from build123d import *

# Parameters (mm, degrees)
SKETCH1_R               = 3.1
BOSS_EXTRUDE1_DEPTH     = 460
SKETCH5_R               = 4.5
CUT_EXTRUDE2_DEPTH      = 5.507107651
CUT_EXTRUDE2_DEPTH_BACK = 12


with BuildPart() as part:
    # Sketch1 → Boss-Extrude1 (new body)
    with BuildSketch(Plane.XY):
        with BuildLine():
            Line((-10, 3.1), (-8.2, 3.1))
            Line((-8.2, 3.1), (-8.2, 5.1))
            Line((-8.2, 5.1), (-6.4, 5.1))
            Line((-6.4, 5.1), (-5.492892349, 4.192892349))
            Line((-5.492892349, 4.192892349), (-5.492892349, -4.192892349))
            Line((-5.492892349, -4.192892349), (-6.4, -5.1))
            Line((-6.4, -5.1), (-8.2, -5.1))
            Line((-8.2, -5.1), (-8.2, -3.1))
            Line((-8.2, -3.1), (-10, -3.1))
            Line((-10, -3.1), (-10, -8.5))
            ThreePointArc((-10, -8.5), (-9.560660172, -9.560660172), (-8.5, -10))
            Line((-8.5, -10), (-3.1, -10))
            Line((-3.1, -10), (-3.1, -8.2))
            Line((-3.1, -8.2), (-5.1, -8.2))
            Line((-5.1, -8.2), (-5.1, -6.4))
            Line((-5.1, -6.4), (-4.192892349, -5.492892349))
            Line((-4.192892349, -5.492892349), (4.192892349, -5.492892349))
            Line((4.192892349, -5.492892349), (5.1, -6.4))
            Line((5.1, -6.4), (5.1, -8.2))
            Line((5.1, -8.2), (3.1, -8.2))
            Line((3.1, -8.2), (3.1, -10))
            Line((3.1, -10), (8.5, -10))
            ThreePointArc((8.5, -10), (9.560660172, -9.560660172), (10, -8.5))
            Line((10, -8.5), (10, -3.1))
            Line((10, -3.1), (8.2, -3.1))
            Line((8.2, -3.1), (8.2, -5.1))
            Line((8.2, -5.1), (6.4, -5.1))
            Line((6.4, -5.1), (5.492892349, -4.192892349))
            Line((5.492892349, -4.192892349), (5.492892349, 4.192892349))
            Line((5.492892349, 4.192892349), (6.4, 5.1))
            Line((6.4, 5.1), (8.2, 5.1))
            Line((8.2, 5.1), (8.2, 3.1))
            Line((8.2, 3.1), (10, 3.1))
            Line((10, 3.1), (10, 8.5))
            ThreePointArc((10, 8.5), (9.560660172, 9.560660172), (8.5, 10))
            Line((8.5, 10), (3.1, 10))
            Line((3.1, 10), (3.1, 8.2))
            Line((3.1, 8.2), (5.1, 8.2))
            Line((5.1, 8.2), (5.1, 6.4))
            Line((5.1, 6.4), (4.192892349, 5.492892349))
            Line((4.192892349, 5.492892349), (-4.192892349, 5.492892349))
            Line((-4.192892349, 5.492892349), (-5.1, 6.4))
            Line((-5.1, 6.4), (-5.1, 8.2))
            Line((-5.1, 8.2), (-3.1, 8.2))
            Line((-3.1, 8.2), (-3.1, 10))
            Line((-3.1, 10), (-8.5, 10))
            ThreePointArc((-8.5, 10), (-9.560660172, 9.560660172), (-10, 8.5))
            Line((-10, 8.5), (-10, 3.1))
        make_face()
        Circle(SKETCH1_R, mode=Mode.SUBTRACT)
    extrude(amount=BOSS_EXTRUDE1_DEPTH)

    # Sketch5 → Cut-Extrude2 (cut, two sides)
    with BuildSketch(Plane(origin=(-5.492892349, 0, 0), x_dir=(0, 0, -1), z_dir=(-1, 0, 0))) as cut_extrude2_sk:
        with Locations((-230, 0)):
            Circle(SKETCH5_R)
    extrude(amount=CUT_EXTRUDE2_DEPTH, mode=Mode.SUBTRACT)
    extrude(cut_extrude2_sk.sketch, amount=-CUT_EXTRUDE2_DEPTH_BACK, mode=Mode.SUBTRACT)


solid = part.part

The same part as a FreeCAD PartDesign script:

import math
import FreeCAD as App
import Part
import Sketcher
from FreeCAD import Vector

doc = App.newDocument("Part")
body = doc.addObject("PartDesign::Body", "Body")

# Sketch on XY plane
sketch1 = doc.addObject("Sketcher::SketchObject", "Sketch")
body.addObject(sketch1)
sketch1.AttachmentSupport = (doc.XY_Plane, [""])
sketch1.MapMode = "FlatFace"
sketch1.addGeometry([
    Part.LineSegment(Vector(-10, 3.1, 0), Vector(-8.2, 3.1, 0)),  # 0
    Part.LineSegment(Vector(-8.2, 3.1, 0), Vector(-8.2, 5.1, 0)),  # 1
    Part.LineSegment(Vector(-8.2, 5.1, 0), Vector(-6.4, 5.1, 0)),  # 2
    Part.LineSegment(Vector(-6.4, 5.1, 0), Vector(-5.5, 4.2, 0)),  # 3
    Part.LineSegment(Vector(-5.5, 4.2, 0), Vector(-5.5, -4.2, 0)),  # 4
    Part.LineSegment(Vector(-5.5, -4.2, 0), Vector(-6.4, -5.1, 0)),  # 5
    Part.LineSegment(Vector(-6.4, -5.1, 0), Vector(-8.2, -5.1, 0)),  # 6
    Part.LineSegment(Vector(-8.2, -5.1, 0), Vector(-8.2, -3.1, 0)),  # 7
    Part.LineSegment(Vector(-8.2, -3.1, 0), Vector(-10, -3.1, 0)),  # 8
    Part.LineSegment(Vector(-10, -3.1, 0), Vector(-10, -8.5, 0)),  # 9
    Part.ArcOfCircle(Part.Circle(Vector(-8.5, -8.5, 0), Vector(0, 0, 1), 1.5), math.radians(180), math.radians(270)),  # 10
    Part.LineSegment(Vector(-8.5, -10, 0), Vector(-3.1, -10, 0)),  # 11
    Part.LineSegment(Vector(-3.1, -10, 0), Vector(-3.1, -8.2, 0)),  # 12
    Part.LineSegment(Vector(-3.1, -8.2, 0), Vector(-5.1, -8.2, 0)),  # 13
    Part.LineSegment(Vector(-5.1, -8.2, 0), Vector(-5.1, -6.4, 0)),  # 14
    Part.LineSegment(Vector(-5.1, -6.4, 0), Vector(-4.2, -5.5, 0)),  # 15
    Part.LineSegment(Vector(-4.2, -5.5, 0), Vector(4.2, -5.5, 0)),  # 16
    Part.LineSegment(Vector(4.2, -5.5, 0), Vector(5.1, -6.4, 0)),  # 17
    Part.LineSegment(Vector(5.1, -6.4, 0), Vector(5.1, -8.2, 0)),  # 18
    Part.LineSegment(Vector(5.1, -8.2, 0), Vector(3.1, -8.2, 0)),  # 19
    Part.LineSegment(Vector(3.1, -8.2, 0), Vector(3.1, -10, 0)),  # 20
    Part.LineSegment(Vector(3.1, -10, 0), Vector(8.5, -10, 0)),  # 21
    Part.ArcOfCircle(Part.Circle(Vector(8.5, -8.5, 0), Vector(0, 0, 1), 1.5), math.radians(-90), math.radians(0)),  # 22
    Part.LineSegment(Vector(10, -8.5, 0), Vector(10, -3.1, 0)),  # 23
    Part.LineSegment(Vector(10, -3.1, 0), Vector(8.2, -3.1, 0)),  # 24
    Part.LineSegment(Vector(8.2, -3.1, 0), Vector(8.2, -5.1, 0)),  # 25
    Part.LineSegment(Vector(8.2, -5.1, 0), Vector(6.4, -5.1, 0)),  # 26
    Part.LineSegment(Vector(6.4, -5.1, 0), Vector(5.5, -4.2, 0)),  # 27
    Part.LineSegment(Vector(5.5, -4.2, 0), Vector(5.5, 4.2, 0)),  # 28
    Part.LineSegment(Vector(5.5, 4.2, 0), Vector(6.4, 5.1, 0)),  # 29
    Part.LineSegment(Vector(6.4, 5.1, 0), Vector(8.2, 5.1, 0)),  # 30
    Part.LineSegment(Vector(8.2, 5.1, 0), Vector(8.2, 3.1, 0)),  # 31
    Part.LineSegment(Vector(8.2, 3.1, 0), Vector(10, 3.1, 0)),  # 32
    Part.LineSegment(Vector(10, 3.1, 0), Vector(10, 8.5, 0)),  # 33
    Part.ArcOfCircle(Part.Circle(Vector(8.5, 8.5, 0), Vector(0, 0, 1), 1.5), math.radians(0), math.radians(90)),  # 34
    Part.LineSegment(Vector(8.5, 10, 0), Vector(3.1, 10, 0)),  # 35
    Part.LineSegment(Vector(3.1, 10, 0), Vector(3.1, 8.2, 0)),  # 36
    Part.LineSegment(Vector(3.1, 8.2, 0), Vector(5.1, 8.2, 0)),  # 37
    Part.LineSegment(Vector(5.1, 8.2, 0), Vector(5.1, 6.4, 0)),  # 38
    Part.LineSegment(Vector(5.1, 6.4, 0), Vector(4.2, 5.5, 0)),  # 39
    Part.LineSegment(Vector(4.2, 5.5, 0), Vector(-4.2, 5.5, 0)),  # 40
    Part.LineSegment(Vector(-4.2, 5.5, 0), Vector(-5.1, 6.4, 0)),  # 41
    Part.LineSegment(Vector(-5.1, 6.4, 0), Vector(-5.1, 8.2, 0)),  # 42
    Part.LineSegment(Vector(-5.1, 8.2, 0), Vector(-3.1, 8.2, 0)),  # 43
    Part.LineSegment(Vector(-3.1, 8.2, 0), Vector(-3.1, 10, 0)),  # 44
    Part.LineSegment(Vector(-3.1, 10, 0), Vector(-8.5, 10, 0)),  # 45
    Part.ArcOfCircle(Part.Circle(Vector(-8.5, 8.5, 0), Vector(0, 0, 1), 1.5), math.radians(90), math.radians(180)),  # 46
    Part.LineSegment(Vector(-10, 8.5, 0), Vector(-10, 3.1, 0)),  # 47
    Part.Circle(Vector(0, 0, 0), Vector(0, 0, 1), 3.1),  # 48
], False)
sketch1.addConstraint([
    Sketcher.Constraint("Coincident", 0, 2, 1, 1),
    Sketcher.Constraint("Coincident", 1, 2, 2, 1),
    Sketcher.Constraint("Coincident", 2, 2, 3, 1),
    Sketcher.Constraint("Coincident", 3, 2, 4, 1),
    Sketcher.Constraint("Coincident", 4, 2, 5, 1),
    Sketcher.Constraint("Coincident", 5, 2, 6, 1),
    Sketcher.Constraint("Coincident", 6, 2, 7, 1),
    Sketcher.Constraint("Coincident", 7, 2, 8, 1),
    Sketcher.Constraint("Coincident", 8, 2, 9, 1),
    Sketcher.Constraint("Tangent", 9, 2, 10, 1),
    Sketcher.Constraint("Tangent", 10, 2, 11, 1),
    Sketcher.Constraint("Coincident", 11, 2, 12, 1),
    Sketcher.Constraint("Coincident", 12, 2, 13, 1),
    Sketcher.Constraint("Coincident", 13, 2, 14, 1),
    Sketcher.Constraint("Coincident", 14, 2, 15, 1),
    Sketcher.Constraint("Coincident", 15, 2, 16, 1),
    Sketcher.Constraint("Coincident", 16, 2, 17, 1),
    Sketcher.Constraint("Coincident", 17, 2, 18, 1),
    Sketcher.Constraint("Coincident", 18, 2, 19, 1),
    Sketcher.Constraint("Coincident", 19, 2, 20, 1),
    Sketcher.Constraint("Coincident", 20, 2, 21, 1),
    Sketcher.Constraint("Tangent", 21, 2, 22, 1),
    Sketcher.Constraint("Tangent", 22, 2, 23, 1),
    Sketcher.Constraint("Coincident", 23, 2, 24, 1),
    Sketcher.Constraint("Coincident", 24, 2, 25, 1),
    Sketcher.Constraint("Coincident", 25, 2, 26, 1),
    Sketcher.Constraint("Coincident", 26, 2, 27, 1),
    Sketcher.Constraint("Coincident", 27, 2, 28, 1),
    Sketcher.Constraint("Coincident", 28, 2, 29, 1),
    Sketcher.Constraint("Coincident", 29, 2, 30, 1),
    Sketcher.Constraint("Coincident", 30, 2, 31, 1),
    Sketcher.Constraint("Coincident", 31, 2, 32, 1),
    Sketcher.Constraint("Coincident", 32, 2, 33, 1),
    Sketcher.Constraint("Tangent", 33, 2, 34, 1),
    Sketcher.Constraint("Tangent", 34, 2, 35, 1),
    Sketcher.Constraint("Coincident", 35, 2, 36, 1),
    Sketcher.Constraint("Coincident", 36, 2, 37, 1),
    Sketcher.Constraint("Coincident", 37, 2, 38, 1),
    Sketcher.Constraint("Coincident", 38, 2, 39, 1),
    Sketcher.Constraint("Coincident", 39, 2, 40, 1),
    Sketcher.Constraint("Coincident", 40, 2, 41, 1),
    Sketcher.Constraint("Coincident", 41, 2, 42, 1),
    Sketcher.Constraint("Coincident", 42, 2, 43, 1),
    Sketcher.Constraint("Coincident", 43, 2, 44, 1),
    Sketcher.Constraint("Coincident", 44, 2, 45, 1),
    Sketcher.Constraint("Tangent", 45, 2, 46, 1),
    Sketcher.Constraint("Tangent", 46, 2, 47, 1),
    Sketcher.Constraint("Coincident", 47, 2, 0, 1),
    Sketcher.Constraint("Horizontal", 0),
    Sketcher.Constraint("Vertical", 1),
    Sketcher.Constraint("Horizontal", 2),
    Sketcher.Constraint("Vertical", 4),
    Sketcher.Constraint("Horizontal", 6),
    Sketcher.Constraint("Vertical", 7),
    Sketcher.Constraint("Horizontal", 8),
    Sketcher.Constraint("Vertical", 9),
    Sketcher.Constraint("Horizontal", 11),
    Sketcher.Constraint("Vertical", 12),
    Sketcher.Constraint("Horizontal", 13),
    Sketcher.Constraint("Vertical", 14),
    Sketcher.Constraint("Horizontal", 16),
    Sketcher.Constraint("Vertical", 18),
    Sketcher.Constraint("Horizontal", 19),
    Sketcher.Constraint("Vertical", 20),
    Sketcher.Constraint("Horizontal", 21),
    Sketcher.Constraint("Vertical", 23),
    Sketcher.Constraint("Horizontal", 24),
    Sketcher.Constraint("Vertical", 25),
    Sketcher.Constraint("Horizontal", 26),
    Sketcher.Constraint("Vertical", 28),
    Sketcher.Constraint("Horizontal", 30),
    Sketcher.Constraint("Vertical", 31),
    Sketcher.Constraint("Horizontal", 32),
    Sketcher.Constraint("Vertical", 33),
    Sketcher.Constraint("Horizontal", 35),
    Sketcher.Constraint("Vertical", 36),
    Sketcher.Constraint("Horizontal", 37),
    Sketcher.Constraint("Vertical", 38),
    Sketcher.Constraint("Horizontal", 40),
    Sketcher.Constraint("Vertical", 42),
    Sketcher.Constraint("Horizontal", 43),
    Sketcher.Constraint("Vertical", 44),
    Sketcher.Constraint("Horizontal", 45),
    Sketcher.Constraint("Vertical", 47),
    Sketcher.Constraint("Coincident", 48, 3, -1, 1),
    Sketcher.Constraint("Equal", 10, 22),
    Sketcher.Constraint("Equal", 22, 34),
    Sketcher.Constraint("Equal", 34, 46),
    Sketcher.Constraint("Symmetric", 10, 3, 34, 3, -1, 1),
    Sketcher.Constraint("Symmetric", 22, 3, 46, 3, -1, 1),
    Sketcher.Constraint("Symmetric", 0, 2, 24, 2, -1, 1),
    Sketcher.Constraint("Symmetric", 2, 2, 26, 2, -1, 1),
    Sketcher.Constraint("Symmetric", 3, 2, 27, 2, -1, 1),
    Sketcher.Constraint("Symmetric", 5, 2, 29, 2, -1, 1),
    Sketcher.Constraint("Symmetric", 7, 2, 31, 2, -1, 1),
    Sketcher.Constraint("Symmetric", 12, 2, 36, 2, -1, 1),
    Sketcher.Constraint("Symmetric", 14, 2, 38, 2, -1, 1),
    Sketcher.Constraint("Symmetric", 15, 2, 39, 2, -1, 1),
    Sketcher.Constraint("Symmetric", 17, 2, 41, 2, -1, 1),
    Sketcher.Constraint("Symmetric", 19, 2, 43, 2, -1, 1),
    Sketcher.Constraint("Symmetric", 10, 3, 22, 3, -2),
    Sketcher.Constraint("Symmetric", 14, 2, 17, 2, -2),
    Sketcher.Constraint("Symmetric", 12, 2, 19, 2, -2),
    Sketcher.Constraint("Symmetric", 7, 2, 24, 2, -2),
    Sketcher.Constraint("Symmetric", 5, 2, 26, 2, -2),
    Sketcher.Constraint("Perpendicular", 3, 5),
    Sketcher.Constraint("Parallel", 5, 15),
    Sketcher.Constraint("Perpendicular", 15, 17),
    Sketcher.Constraint("Perpendicular", 27, 29),
    Sketcher.Constraint("Perpendicular", 39, 41),
    Sketcher.Constraint("Horizontal", 4, 2, 27, 2),
    Sketcher.Constraint("Equal", 0, 2),
    Sketcher.Constraint("Equal", 43, 1),
    Sketcher.Constraint("Equal", 40, 4),
    Sketcher.Constraint("Equal", 45, 9),
    Sketcher.Constraint("Equal", 32, 12),
    Sketcher.Constraint("Equal", 12, 14),
    Sketcher.Constraint("Equal", 5, 15),
    Sketcher.Constraint("Diameter", 48, 6.2),
    Sketcher.Constraint("Radius", 10, 1.5),
    Sketcher.Constraint("DistanceX", 13, 2, 13, 1, 2.0),
    Sketcher.Constraint("DistanceX", 0, 1, 0, 2, 1.8),
    Sketcher.Constraint("DistanceX", 11, 1, 11, 2, 5.4),
    Sketcher.Constraint("DistanceX", 8, 2, -1, 1, 10.0),
    Sketcher.Constraint("DistanceX", 16, 1, 16, 2, 8.385785),
])
pad1 = doc.addObject("PartDesign::Pad", "Pad")
body.addObject(pad1)
pad1.Profile = sketch1
pad1.Length = 460

# Sketch on YZ plane
sketch2 = doc.addObject("Sketcher::SketchObject", "Sketch001")
body.addObject(sketch2)
sketch2.AttachmentSupport = (doc.YZ_Plane, [""])
sketch2.MapMode = "FlatFace"
sketch2.AttachmentOffset = App.Placement(Vector(0, 0, -5.492892), App.Rotation())
sketch2.addGeometry(Part.Circle(Vector(0, 230, 0), Vector(0, 0, 1), 4.5), False)
sketch2.addConstraint([
    Sketcher.Constraint("PointOnObject", 0, 3, -2),
    Sketcher.Constraint("Diameter", 0, 9.0),
    Sketcher.Constraint("DistanceY", -1, 1, 0, 3, 230.0),
])
pocket1 = doc.addObject("PartDesign::Pocket", "Pocket")
body.addObject(pocket1)
pocket1.Profile = sketch2
pocket1.Type = "TwoLengths"
pocket1.Length = 5.507108
pocket1.Length2 = 12

doc.recompute()
